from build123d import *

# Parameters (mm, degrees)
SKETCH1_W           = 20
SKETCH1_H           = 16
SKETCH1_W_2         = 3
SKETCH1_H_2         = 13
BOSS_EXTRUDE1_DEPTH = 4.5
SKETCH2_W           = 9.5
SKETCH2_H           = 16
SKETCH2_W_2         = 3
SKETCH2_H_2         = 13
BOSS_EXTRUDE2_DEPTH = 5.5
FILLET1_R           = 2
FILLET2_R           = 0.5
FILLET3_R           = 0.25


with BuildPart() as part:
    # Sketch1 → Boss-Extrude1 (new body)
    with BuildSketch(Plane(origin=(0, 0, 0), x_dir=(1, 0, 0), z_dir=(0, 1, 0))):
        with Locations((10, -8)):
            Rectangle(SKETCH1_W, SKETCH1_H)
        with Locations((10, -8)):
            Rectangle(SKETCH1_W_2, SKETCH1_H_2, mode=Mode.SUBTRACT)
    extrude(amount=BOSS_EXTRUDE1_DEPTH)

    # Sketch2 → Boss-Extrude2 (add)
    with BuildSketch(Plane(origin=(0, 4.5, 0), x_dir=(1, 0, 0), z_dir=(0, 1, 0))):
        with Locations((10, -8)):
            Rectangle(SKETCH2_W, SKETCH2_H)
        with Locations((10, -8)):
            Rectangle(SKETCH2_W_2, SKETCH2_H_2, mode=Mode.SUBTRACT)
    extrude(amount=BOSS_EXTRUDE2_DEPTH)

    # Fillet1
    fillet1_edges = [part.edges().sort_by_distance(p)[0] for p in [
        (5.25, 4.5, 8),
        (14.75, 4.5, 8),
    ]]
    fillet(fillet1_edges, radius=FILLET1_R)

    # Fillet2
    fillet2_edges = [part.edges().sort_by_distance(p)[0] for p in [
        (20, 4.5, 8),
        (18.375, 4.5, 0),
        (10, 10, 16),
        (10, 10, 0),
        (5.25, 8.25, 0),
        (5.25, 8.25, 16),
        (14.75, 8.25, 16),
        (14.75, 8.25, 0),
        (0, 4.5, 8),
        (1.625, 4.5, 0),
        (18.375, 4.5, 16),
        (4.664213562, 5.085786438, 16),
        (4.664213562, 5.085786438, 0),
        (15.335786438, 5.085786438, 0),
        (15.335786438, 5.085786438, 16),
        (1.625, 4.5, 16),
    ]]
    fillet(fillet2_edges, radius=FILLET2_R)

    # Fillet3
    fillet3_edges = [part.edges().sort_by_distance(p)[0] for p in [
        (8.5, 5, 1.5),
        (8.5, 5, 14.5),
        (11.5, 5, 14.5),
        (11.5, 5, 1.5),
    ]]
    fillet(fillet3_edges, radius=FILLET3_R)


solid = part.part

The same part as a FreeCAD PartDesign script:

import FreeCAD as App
import Part
import Sketcher
from FreeCAD import Vector
Q = App.Units.Quantity


def edges_at(feature, points):
    """Names of the edges that pass closest to the given points."""
    edges = feature.Shape.Edges
    near = lambda p: min(range(len(edges)), key=lambda i: edges[i].distToShape(Part.Vertex(*p))[0])
    return sorted({f"Edge{near(p) + 1}" for p in points})

doc = App.newDocument("Part")
body = doc.addObject("PartDesign::Body", "Body")

sketch1 = body.newObject("Sketcher::SketchObject", "Sketch")
sketch1.AttachmentSupport = (doc.getObject("XZ_Plane"), [""])
sketch1.MapMode = "FlatFace"
sketch1.addGeometry(Part.LineSegment(Vector(0, 0, 0), Vector(0, 16, 0)), False)
sketch1.addGeometry(Part.LineSegment(Vector(0, 16, 0), Vector(20, 16, 0)), False)
sketch1.addGeometry(Part.LineSegment(Vector(20, 16, 0), Vector(20, 0, 0)), False)
sketch1.addGeometry(Part.LineSegment(Vector(20, 0, 0), Vector(0, 0, 0)), False)
sketch1.addGeometry(Part.LineSegment(Vector(11.5, 14.5, 0), Vector(8.5, 14.5, 0)), False)
sketch1.addGeometry(Part.LineSegment(Vector(8.5, 14.5, 0), Vector(8.5, 1.5, 0)), False)
sketch1.addGeometry(Part.LineSegment(Vector(8.5, 1.5, 0), Vector(11.5, 1.5, 0)), False)
sketch1.addGeometry(Part.LineSegment(Vector(11.5, 1.5, 0), Vector(11.5, 14.5, 0)), False)
sketch1.addConstraint(Sketcher.Constraint("Coincident", 0, 2, 1, 1))
sketch1.addConstraint(Sketcher.Constraint("Coincident", 1, 2, 2, 1))
sketch1.addConstraint(Sketcher.Constraint("Coincident", 2, 2, 3, 1))
sketch1.addConstraint(Sketcher.Constraint("Coincident", 3, 2, 0, 1))
sketch1.addConstraint(Sketcher.Constraint("Coincident", 4, 2, 5, 1))
sketch1.addConstraint(Sketcher.Constraint("Coincident", 5, 2, 6, 1))
sketch1.addConstraint(Sketcher.Constraint("Coincident", 6, 2, 7, 1))
sketch1.addConstraint(Sketcher.Constraint("Coincident", 7, 2, 4, 1))
sketch1.addConstraint(Sketcher.Constraint("Vertical", 0))
sketch1.addConstraint(Sketcher.Constraint("Horizontal", 1))
sketch1.addConstraint(Sketcher.Constraint("Vertical", 2))
sketch1.addConstraint(Sketcher.Constraint("Horizontal", 3))
sketch1.addConstraint(Sketcher.Constraint("Horizontal", 4))
sketch1.addConstraint(Sketcher.Constraint("Vertical", 5))
sketch1.addConstraint(Sketcher.Constraint("Horizontal", 6))
sketch1.addConstraint(Sketcher.Constraint("Vertical", 7))
sketch1.addConstraint(Sketcher.Constraint("Coincident", 3, 2, -1, 1))
sketch1.addConstraint(Sketcher.Constraint("DistanceX", 1, 1, 1, 2, Q("20 mm")))
sketch1.addConstraint(Sketcher.Constraint("DistanceX", 4, 2, 4, 1, Q("3 mm")))
sketch1.addConstraint(Sketcher.Constraint("DistanceY", 0, 1, 0, 2, Q("16 mm")))
sketch1.addConstraint(Sketcher.Constraint("DistanceY", 5, 2, 5, 1, Q("13 mm")))
sketch1.addConstraint(Sketcher.Constraint("DistanceX", -1, 1, 4, 2, Q("8.5 mm")))
sketch1.addConstraint(Sketcher.Constraint("DistanceY", -1, 1, 4, 2, Q("14.5 mm")))
pad1 = body.newObject("PartDesign::Pad", "Pad")
pad1.Profile = sketch1
pad1.Length = 4.5
pad1.Reversed = True

sketch2 = body.newObject("Sketcher::SketchObject", "Sketch001")
sketch2.AttachmentSupport = (doc.getObject("XZ_Plane"), [""])
sketch2.MapMode = "FlatFace"
sketch2.AttachmentOffset = App.Placement(Vector(0, 0, -4.5), App.Rotation())
sketch2.addGeometry(Part.LineSegment(Vector(5.2, 0, 0), Vector(5.2, 16, 0)), False)
sketch2.addGeometry(Part.LineSegment(Vector(5.2, 16, 0), Vector(14.8, 16, 0)), False)
sketch2.addGeometry(Part.LineSegment(Vector(14.8, 16, 0), Vector(14.8, 0, 0)), False)
sketch2.addGeometry(Part.LineSegment(Vector(14.8, 0, 0), Vector(5.2, 0, 0)), False)
sketch2.addGeometry(Part.LineSegment(Vector(11.5, 14.5, 0), Vector(8.5, 14.5, 0)), False)
sketch2.addGeometry(Part.LineSegment(Vector(8.5, 14.5, 0), Vector(8.5, 1.5, 0)), False)
sketch2.addGeometry(Part.LineSegment(Vector(8.5, 1.5, 0), Vector(11.5, 1.5, 0)), False)
sketch2.addGeometry(Part.LineSegment(Vector(11.5, 1.5, 0), Vector(11.5, 14.5, 0)), False)
sketch2.addConstraint(Sketcher.Constraint("Coincident", 0, 2, 1, 1))
sketch2.addConstraint(Sketcher.Constraint("Coincident", 1, 2, 2, 1))
sketch2.addConstraint(Sketcher.Constraint("Coincident", 2, 2, 3, 1))
sketch2.addConstraint(Sketcher.Constraint("Coincident", 3, 2, 0, 1))
sketch2.addConstraint(Sketcher.Constraint("Coincident", 4, 2, 5, 1))
sketch2.addConstraint(Sketcher.Constraint("Coincident", 5, 2, 6, 1))
sketch2.addConstraint(Sketcher.Constraint("Coincident", 6, 2, 7, 1))
sketch2.addConstraint(Sketcher.Constraint("Coincident", 7, 2, 4, 1))
sketch2.addConstraint(Sketcher.Constraint("Vertical", 0))
sketch2.addConstraint(Sketcher.Constraint("Horizontal", 1))
sketch2.addConstraint(Sketcher.Constraint("Vertical", 2))
sketch2.addConstraint(Sketcher.Constraint("Horizontal", 3))
sketch2.addConstraint(Sketcher.Constraint("Horizontal", 4))
sketch2.addConstraint(Sketcher.Constraint("Vertical", 5))
sketch2.addConstraint(Sketcher.Constraint("Horizontal", 6))
sketch2.addConstraint(Sketcher.Constraint("Vertical", 7))
sketch2.addConstraint(Sketcher.Constraint("PointOnObject", 2, 2, -1))
sketch2.addConstraint(Sketcher.Constraint("DistanceX", 4, 2, 4, 1, Q("3 mm")))
sketch2.addConstraint(Sketcher.Constraint("DistanceY", 0, 1, 0, 2, Q("16 mm")))
sketch2.addConstraint(Sketcher.Constraint("DistanceY", 5, 2, 5, 1, Q("13 mm")))
sketch2.addConstraint(Sketcher.Constraint("DistanceX", 1, 1, 1, 2, Q("9.5 mm")))
sketch2.addConstraint(Sketcher.Constraint("DistanceX", -1, 1, 4, 2, Q("8.5 mm")))
sketch2.addConstraint(Sketcher.Constraint("DistanceY", -1, 1, 4, 2, Q("14.5 mm")))
sketch2.addConstraint(Sketcher.Constraint("DistanceX", -1, 1, 0, 2, Q("5.25 mm")))
pad2 = body.newObject("PartDesign::Pad", "Pad001")
pad2.Profile = sketch2
pad2.Length = 5.5
pad2.Reversed = True
doc.recompute()

fillet = body.newObject("PartDesign::Fillet", "Fillet")
fillet.Base = (pad2, edges_at(pad2, [(5.25, 4.5, 8), (14.75, 4.5, 8)]))
fillet.Radius = 2
doc.recompute()

fillet2 = body.newObject("PartDesign::Fillet", "Fillet001")
fillet2.Base = (fillet, edges_at(fillet, [
    (20, 4.5, 8),
    (18.375, 4.5, 0),
    (10, 10, 16),
    (10, 10, 0),
    (5.25, 8.25, 0),
    (5.25, 8.25, 16),
    (14.75, 8.25, 16),
    (14.75, 8.25, 0),
    (0, 4.5, 8),
    (1.625, 4.5, 0),
    (18.375, 4.5, 16),
    (4.664, 5.086, 16),
    (4.664, 5.086, 0),
    (15.336, 5.086, 0),
    (15.336, 5.086, 16),
    (1.625, 4.5, 16),
]))
fillet2.Radius = 0.5
doc.recompute()

fillet3 = body.newObject("PartDesign::Fillet", "Fillet002")
fillet3.Base = (fillet2, edges_at(fillet2, [
    (8.5, 5, 1.5),
    (8.5, 5, 14.5),
    (11.5, 5, 14.5),
    (11.5, 5, 1.5),
]))
fillet3.Radius = 0.25

doc.recompute()
